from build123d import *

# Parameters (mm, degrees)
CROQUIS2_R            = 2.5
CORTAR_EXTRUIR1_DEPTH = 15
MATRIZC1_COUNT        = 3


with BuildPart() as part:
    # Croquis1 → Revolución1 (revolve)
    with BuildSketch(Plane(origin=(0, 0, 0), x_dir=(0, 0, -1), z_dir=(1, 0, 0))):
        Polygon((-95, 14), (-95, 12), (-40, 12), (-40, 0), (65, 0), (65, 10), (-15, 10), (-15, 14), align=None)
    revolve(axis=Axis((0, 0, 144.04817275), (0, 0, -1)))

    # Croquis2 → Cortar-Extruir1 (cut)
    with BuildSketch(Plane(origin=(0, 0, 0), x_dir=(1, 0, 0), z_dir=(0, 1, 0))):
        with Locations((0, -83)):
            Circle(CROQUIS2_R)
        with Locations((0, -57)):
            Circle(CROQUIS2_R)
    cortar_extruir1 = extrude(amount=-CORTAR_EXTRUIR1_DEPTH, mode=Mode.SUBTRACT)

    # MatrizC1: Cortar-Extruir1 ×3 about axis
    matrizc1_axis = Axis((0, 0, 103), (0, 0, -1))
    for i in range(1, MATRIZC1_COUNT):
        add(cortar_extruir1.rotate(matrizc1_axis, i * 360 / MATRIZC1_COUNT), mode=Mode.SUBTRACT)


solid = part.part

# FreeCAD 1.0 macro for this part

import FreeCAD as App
import Part
import Sketcher
Q = App.Units.Quantity


def add_polygon(sketch, points):
    """Adds a closed chain of lines whose ends are joined by coincident constraints."""
    first, n = sketch.GeometryCount, len(points)
    for a, b in zip(points, points[1:] + points[:1]):
        sketch.addGeometry(Part.LineSegment(App.Vector(*a, 0), App.Vector(*b, 0)), False)
    for i in range(n):
        sketch.addConstraint(Sketcher.Constraint("Coincident", first + i, 2, first + (i + 1) % n, 1))

doc = App.newDocument("Part")
params = doc.addObject("Spreadsheet::Sheet", "Params")
for row, (alias, value) in enumerate([
    ("sketch1_width", "2 mm"),
    ("sketch1_width2", "12 mm"),
    ("sketch1_width3", "10 mm"),
    ("sketch1_height", "55 mm"),
    ("sketch1_height2", "105 mm"),
    ("revolution_angle", "360 deg"),
    ("sketch2_diameter", "5 mm"),
    ("pocket1_length", "15 mm"),
], start=1):
    params.set(f"A{row}", alias)
    params.set(f"B{row}", "=" + value)
    params.setAlias(f"B{row}", alias)

body = doc.addObject("PartDesign::Body", "Body")

sketch1 = body.newObject("Sketcher::SketchObject", "Sketch")
sketch1.AttachmentSupport = (doc.getObject("YZ_Plane"), [""])
sketch1.MapMode = "FlatFace"
add_polygon(sketch1, [(14, 95), (12, 95), (12, 40), (0, 40), (0, -65), (10, -65), (10, 15), (14, 15)])
sketch1.addConstraint([
    Sketcher.Constraint("Horizontal", 0),
    Sketcher.Constraint("Vertical", 1),
    Sketcher.Constraint("Horizontal", 2),
    Sketcher.Constraint("Vertical", 3),
    Sketcher.Constraint("Horizontal", 4),
    Sketcher.Constraint("Vertical", 5),
    Sketcher.Constraint("Horizontal", 6),
    Sketcher.Constraint("Vertical", 7),
    Sketcher.Constraint("PointOnObject", 2, 2, -2),
    Sketcher.Constraint("Equal", 5, 7),
    Sketcher.Constraint("DistanceX", 0, 2, 0, 1, Q("2 mm")),
    Sketcher.Constraint("DistanceX", 2, 2, 2, 1, Q("12 mm")),
    Sketcher.Constraint("DistanceX", 4, 1, 4, 2, Q("10 mm")),
    Sketcher.Constraint("DistanceY", 1, 2, 1, 1, Q("55 mm")),
    Sketcher.Constraint("DistanceY", 3, 2, 3, 1, Q("105 mm")),
    Sketcher.Constraint("DistanceY", -1, 1, 0, 2, Q("95 mm")),
])
sketch1.setExpression("Constraints[18]", "Params.sketch1_width")
sketch1.setExpression("Constraints[19]", "Params.sketch1_width2")
sketch1.setExpression("Constraints[20]", "Params.sketch1_width3")
sketch1.setExpression("Constraints[21]", "Params.sketch1_height")
sketch1.setExpression("Constraints[22]", "Params.sketch1_height2")
revolution = body.newObject("PartDesign::Revolution", "Revolution")
revolution.Profile = sketch1
revolution.ReferenceAxis = (sketch1, ["V_Axis"])
revolution.setExpression("Angle", "Params.revolution_angle")

sketch2 = body.newObject("Sketcher::SketchObject", "Sketch001")
sketch2.AttachmentSupport = (doc.getObject("XZ_Plane"), [""])
sketch2.MapMode = "FlatFace"
sketch2.addGeometry([
    Part.Circle(App.Vector(0, 83, 0), App.Vector(0, 0, 1), 2.5),
    Part.Circle(App.Vector(0, 57, 0), App.Vector(0, 0, 1), 2.5),
], False)
sketch2.addConstraint([
    Sketcher.Constraint("Equal", 0, 1),
    Sketcher.Constraint("PointOnObject", 0, 3, -2),
    Sketcher.Constraint("PointOnObject", 1, 3, -2),
    Sketcher.Constraint("Diameter", 0, Q("5 mm")),
    Sketcher.Constraint("DistanceY", -1, 1, 0, 3, Q("83 mm")),
    Sketcher.Constraint("DistanceY", -1, 1, 1, 3, Q("57 mm")),
])
sketch2.setExpression("Constraints[3]", "Params.sketch2_diameter")
pocket1 = body.newObject("PartDesign::Pocket", "Pocket")
pocket1.Profile = sketch2
pocket1.setExpression("Length", "Params.pocket1_length")
pocket1.Reversed = True
doc.recompute()

polarpattern = body.newObject("PartDesign::PolarPattern", "PolarPattern")
polarpattern.Originals = [pocket1]
polarpattern.Axis = (doc.getObject("Z_Axis"), [""])
polarpattern.Angle = 360
polarpattern.Occurrences = 3
body.Tip = polarpattern

doc.recompute()
